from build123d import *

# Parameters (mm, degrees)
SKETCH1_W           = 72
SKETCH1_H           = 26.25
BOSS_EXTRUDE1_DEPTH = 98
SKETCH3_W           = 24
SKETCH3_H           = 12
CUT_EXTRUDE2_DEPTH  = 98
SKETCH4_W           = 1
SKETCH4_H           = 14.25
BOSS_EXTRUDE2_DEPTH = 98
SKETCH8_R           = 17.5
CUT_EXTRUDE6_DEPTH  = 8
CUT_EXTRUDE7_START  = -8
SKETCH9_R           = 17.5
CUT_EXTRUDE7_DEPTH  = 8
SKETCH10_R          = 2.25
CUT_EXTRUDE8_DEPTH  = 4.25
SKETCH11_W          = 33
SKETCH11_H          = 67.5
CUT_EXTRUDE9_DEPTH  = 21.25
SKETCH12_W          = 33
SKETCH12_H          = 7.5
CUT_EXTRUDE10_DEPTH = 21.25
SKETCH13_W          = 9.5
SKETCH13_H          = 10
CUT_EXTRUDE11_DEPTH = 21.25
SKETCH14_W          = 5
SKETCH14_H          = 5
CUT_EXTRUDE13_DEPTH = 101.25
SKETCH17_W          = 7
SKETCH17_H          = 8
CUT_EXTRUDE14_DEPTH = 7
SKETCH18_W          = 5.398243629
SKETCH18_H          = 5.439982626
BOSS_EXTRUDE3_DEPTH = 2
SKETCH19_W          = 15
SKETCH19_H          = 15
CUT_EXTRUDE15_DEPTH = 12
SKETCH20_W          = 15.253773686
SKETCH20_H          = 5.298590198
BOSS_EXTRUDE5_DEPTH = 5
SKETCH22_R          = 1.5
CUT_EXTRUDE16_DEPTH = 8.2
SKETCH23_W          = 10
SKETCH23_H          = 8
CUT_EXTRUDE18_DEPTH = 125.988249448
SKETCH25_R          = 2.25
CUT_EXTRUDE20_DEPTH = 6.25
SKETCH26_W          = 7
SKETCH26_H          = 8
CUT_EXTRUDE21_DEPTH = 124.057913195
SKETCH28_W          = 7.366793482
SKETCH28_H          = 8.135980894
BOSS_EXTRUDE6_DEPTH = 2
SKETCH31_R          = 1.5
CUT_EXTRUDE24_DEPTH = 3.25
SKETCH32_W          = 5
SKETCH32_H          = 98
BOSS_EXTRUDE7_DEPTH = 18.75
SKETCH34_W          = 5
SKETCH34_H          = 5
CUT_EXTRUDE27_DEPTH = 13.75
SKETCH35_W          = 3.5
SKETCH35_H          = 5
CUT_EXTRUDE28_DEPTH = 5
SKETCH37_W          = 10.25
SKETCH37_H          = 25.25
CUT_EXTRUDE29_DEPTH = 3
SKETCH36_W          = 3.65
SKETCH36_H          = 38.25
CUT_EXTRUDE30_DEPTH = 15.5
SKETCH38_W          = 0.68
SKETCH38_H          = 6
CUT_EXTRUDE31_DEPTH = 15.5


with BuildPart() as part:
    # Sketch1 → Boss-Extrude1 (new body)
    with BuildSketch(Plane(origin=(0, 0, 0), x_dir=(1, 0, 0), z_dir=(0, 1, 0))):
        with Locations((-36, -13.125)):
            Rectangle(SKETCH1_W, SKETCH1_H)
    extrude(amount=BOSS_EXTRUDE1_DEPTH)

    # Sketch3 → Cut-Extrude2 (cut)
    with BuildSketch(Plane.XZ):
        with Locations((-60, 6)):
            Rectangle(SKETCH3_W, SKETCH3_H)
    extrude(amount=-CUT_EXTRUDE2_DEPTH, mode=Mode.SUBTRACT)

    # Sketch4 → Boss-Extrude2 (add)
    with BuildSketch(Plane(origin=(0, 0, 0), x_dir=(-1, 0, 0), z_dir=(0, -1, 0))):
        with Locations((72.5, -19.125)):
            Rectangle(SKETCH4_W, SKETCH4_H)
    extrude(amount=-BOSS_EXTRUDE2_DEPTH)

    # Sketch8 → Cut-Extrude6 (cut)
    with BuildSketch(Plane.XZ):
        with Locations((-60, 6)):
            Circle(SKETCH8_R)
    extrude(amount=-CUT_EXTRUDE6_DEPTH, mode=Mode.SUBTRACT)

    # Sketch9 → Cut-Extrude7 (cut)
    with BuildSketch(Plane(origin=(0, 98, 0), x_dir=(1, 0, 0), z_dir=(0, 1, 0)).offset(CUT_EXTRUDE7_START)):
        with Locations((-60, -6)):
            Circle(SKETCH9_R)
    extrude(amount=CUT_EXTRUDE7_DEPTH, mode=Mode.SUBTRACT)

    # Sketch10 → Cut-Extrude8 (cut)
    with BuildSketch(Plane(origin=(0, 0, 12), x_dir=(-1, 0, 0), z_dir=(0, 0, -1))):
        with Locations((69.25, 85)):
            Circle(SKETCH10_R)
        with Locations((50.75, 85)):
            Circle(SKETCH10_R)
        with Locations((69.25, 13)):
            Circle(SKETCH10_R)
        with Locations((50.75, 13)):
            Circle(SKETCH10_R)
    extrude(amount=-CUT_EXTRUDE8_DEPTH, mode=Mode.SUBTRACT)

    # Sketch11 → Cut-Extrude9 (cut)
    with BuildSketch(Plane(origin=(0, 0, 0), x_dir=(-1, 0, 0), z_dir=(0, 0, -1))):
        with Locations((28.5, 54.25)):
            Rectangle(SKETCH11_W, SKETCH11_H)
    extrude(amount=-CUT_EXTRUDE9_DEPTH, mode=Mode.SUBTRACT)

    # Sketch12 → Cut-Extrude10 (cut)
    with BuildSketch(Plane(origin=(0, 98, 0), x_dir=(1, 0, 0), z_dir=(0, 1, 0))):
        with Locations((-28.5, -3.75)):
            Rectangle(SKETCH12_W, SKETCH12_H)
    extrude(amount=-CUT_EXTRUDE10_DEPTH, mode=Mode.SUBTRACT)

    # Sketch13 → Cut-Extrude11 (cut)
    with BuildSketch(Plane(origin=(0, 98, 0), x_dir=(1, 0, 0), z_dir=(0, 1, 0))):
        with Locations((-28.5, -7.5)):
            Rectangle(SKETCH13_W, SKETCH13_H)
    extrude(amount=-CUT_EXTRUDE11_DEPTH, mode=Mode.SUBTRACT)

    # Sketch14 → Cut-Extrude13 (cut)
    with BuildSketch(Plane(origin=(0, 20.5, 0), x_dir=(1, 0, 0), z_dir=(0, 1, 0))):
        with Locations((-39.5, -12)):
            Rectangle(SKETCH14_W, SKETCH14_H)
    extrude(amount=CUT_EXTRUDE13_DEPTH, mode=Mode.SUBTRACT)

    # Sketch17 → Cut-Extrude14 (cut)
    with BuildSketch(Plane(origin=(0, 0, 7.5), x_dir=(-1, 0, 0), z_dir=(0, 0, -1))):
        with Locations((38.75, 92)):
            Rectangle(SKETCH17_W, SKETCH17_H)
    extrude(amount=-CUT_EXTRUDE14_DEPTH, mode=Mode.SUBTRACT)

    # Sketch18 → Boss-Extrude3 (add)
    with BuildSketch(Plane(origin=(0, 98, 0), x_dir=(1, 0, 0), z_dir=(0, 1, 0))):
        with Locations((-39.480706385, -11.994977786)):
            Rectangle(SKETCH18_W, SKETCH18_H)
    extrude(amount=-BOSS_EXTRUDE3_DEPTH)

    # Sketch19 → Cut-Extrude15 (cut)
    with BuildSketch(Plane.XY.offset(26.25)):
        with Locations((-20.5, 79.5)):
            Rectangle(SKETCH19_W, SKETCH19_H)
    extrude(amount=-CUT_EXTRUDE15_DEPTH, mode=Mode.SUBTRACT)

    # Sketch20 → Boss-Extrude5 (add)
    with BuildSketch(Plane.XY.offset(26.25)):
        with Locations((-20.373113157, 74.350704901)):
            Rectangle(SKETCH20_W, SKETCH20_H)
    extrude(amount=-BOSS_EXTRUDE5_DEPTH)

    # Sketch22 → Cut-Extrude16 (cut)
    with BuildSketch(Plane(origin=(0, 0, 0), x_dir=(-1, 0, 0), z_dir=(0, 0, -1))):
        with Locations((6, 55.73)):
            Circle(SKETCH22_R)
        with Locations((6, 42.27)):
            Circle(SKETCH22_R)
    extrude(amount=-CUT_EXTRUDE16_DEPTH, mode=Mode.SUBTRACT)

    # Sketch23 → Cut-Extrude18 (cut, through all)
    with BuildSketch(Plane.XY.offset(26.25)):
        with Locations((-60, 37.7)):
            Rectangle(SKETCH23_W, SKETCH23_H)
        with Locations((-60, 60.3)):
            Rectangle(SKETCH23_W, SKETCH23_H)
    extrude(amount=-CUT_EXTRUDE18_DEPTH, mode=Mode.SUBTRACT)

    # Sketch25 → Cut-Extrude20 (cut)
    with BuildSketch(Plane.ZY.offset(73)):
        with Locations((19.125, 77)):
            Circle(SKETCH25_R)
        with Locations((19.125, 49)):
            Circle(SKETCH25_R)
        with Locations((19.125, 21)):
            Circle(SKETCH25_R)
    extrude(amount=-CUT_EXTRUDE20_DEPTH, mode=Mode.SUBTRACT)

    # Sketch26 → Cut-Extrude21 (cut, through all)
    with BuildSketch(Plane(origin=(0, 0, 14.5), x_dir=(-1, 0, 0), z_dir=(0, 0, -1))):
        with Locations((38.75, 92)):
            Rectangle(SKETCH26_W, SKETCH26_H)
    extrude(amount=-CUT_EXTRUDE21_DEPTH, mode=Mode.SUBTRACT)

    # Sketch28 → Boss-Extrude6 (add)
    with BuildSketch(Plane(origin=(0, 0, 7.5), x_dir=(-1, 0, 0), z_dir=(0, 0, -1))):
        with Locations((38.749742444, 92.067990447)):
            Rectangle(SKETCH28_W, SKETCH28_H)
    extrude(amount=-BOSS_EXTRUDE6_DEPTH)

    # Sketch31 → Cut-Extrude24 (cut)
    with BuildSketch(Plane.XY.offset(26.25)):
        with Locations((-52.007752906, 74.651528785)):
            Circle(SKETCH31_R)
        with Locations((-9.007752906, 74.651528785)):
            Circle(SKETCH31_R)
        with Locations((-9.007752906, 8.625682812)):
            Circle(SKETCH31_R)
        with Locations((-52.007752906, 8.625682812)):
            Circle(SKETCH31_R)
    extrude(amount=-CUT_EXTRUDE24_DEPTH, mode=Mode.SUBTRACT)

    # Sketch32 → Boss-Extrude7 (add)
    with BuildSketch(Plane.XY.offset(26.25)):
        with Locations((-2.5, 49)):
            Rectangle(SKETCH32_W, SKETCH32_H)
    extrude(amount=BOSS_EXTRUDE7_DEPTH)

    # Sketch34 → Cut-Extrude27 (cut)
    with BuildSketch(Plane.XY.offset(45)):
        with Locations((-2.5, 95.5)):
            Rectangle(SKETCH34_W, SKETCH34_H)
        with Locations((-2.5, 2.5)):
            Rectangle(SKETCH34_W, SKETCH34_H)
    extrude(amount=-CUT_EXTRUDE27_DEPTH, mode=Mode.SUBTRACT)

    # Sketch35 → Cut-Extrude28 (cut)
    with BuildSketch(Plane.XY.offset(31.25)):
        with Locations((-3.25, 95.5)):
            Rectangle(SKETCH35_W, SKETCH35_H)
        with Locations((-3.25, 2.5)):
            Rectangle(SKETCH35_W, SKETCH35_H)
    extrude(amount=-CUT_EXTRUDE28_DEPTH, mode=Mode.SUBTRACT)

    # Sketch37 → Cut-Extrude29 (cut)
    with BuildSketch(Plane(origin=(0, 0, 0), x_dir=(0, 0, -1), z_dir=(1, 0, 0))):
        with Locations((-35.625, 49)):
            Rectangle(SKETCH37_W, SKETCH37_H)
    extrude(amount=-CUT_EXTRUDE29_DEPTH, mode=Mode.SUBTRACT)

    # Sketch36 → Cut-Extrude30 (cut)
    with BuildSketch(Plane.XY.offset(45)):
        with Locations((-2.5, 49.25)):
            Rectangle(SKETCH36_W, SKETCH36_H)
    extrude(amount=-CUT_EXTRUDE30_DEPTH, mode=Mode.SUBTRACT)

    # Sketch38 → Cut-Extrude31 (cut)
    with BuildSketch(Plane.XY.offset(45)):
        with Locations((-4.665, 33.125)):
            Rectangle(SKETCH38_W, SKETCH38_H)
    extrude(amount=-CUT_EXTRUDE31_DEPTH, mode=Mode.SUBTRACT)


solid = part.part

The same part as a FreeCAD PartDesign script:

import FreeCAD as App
import Part
import Sketcher
from FreeCAD import Vector

doc = App.newDocument("Part")
params = doc.addObject("Spreadsheet::Sheet", "Params")
for row, (alias, value) in enumerate([
    ("sketch1_width", "72 mm"),
    ("sketch1_height", "26.25 mm"),
    ("pad1_length", "98 mm"),
    ("sketch2_width", "24 mm"),
    ("sketch2_height", "12 mm"),
    ("pocket1_length", "98 mm"),
    ("sketch3_width", "1 mm"),
    ("sketch3_height", "14.25 mm"),
    ("pad2_length", "98 mm"),
    ("sketch4_diameter", "35 mm"),
    ("pocket2_length", "8 mm"),
    ("sketch5_diameter", "35 mm"),
    ("pocket3_length", "8 mm"),
    ("sketch6_diameter", "4.5 mm"),
    ("pocket4_length", "4.25 mm"),
    ("sketch7_width", "33 mm"),
    ("sketch7_height", "67.5 mm"),
    ("pocket5_length", "21.25 mm"),
    ("sketch8_width", "33 mm"),
    ("sketch8_height", "7.5 mm"),
    ("pocket6_length", "21.25 mm"),
    ("sketch9_height", "10 mm"),
    ("sketch9_width", "9.5 mm"),
    ("pocket7_length", "21.25 mm"),
    ("sketch10_width", "5 mm"),
    ("pocket8_length", "101.25 mm"),
    ("sketch11_width", "7 mm"),
    ("sketch11_height", "8 mm"),
    ("pocket9_length", "7 mm"),
    ("pad3_length", "2 mm"),
    ("sketch13_width", "15 mm"),
    ("pocket10_length", "12 mm"),
    ("pad4_length", "5 mm"),
    ("sketch15_diameter", "3 mm"),
    ("pocket11_length", "8.2 mm"),
    ("sketch16_width", "10 mm"),
    ("sketch16_height", "8 mm"),
    ("sketch17_diameter", "4.5 mm"),
    ("pocket13_length", "6.25 mm"),
    ("sketch18_width", "7 mm"),
    ("sketch18_height", "8 mm"),
    ("pad5_length", "2 mm"),
    ("sketch20_diameter", "3 mm"),
    ("pocket15_length", "3.25 mm"),
    ("sketch21_width", "5 mm"),
    ("sketch21_height", "98 mm"),
    ("pad6_length", "18.75 mm"),
    ("sketch22_width", "5 mm"),
    ("pocket16_length", "13.75 mm"),
    ("sketch23_height", "5 mm"),
    ("sketch23_width", "3.5 mm"),
    ("pocket17_length", "5 mm"),
    ("sketch24_width", "25.25 mm"),
    ("sketch24_height", "10.25 mm"),
    ("pocket18_length", "3 mm"),
    ("sketch25_width", "3.65 mm"),
    ("sketch25_height", "38.25 mm"),
    ("pocket19_length", "15.5 mm"),
    ("sketch26_height", "6 mm"),
    ("sketch26_width", "0.68 mm"),
    ("pocket20_length", "15.5 mm"),
], start=1):
    params.set(f"A{row}", alias)
    params.set(f"B{row}", "=" + value)
    params.setAlias(f"B{row}", alias)

body = doc.addObject("PartDesign::Body", "Body")

# Sketch on XZ plane
sketch1 = doc.addObject("Sketcher::SketchObject", "Sketch")
body.addObject(sketch1)
sketch1.AttachmentSupport = (doc.XZ_Plane, [""])
sketch1.MapMode = "FlatFace"
sketch1.addGeometry(Part.LineSegment(Vector(-72, 0, 0), Vector(-72, 26.25, 0)), False)
sketch1.addGeometry(Part.LineSegment(Vector(-72, 26.25, 0), Vector(0, 26.25, 0)), False)
sketch1.addGeometry(Part.LineSegment(Vector(0, 26.25, 0), Vector(0, 0, 0)), False)
sketch1.addGeometry(Part.LineSegment(Vector(0, 0, 0), Vector(-72, 0, 0)), False)
sketch1.addConstraint(Sketcher.Constraint("Coincident", 0, 2, 1, 1))
sketch1.addConstraint(Sketcher.Constraint("Coincident", 1, 2, 2, 1))
sketch1.addConstraint(Sketcher.Constraint("Coincident", 2, 2, 3, 1))
sketch1.addConstraint(Sketcher.Constraint("Coincident", 3, 2, 0, 1))
sketch1.addConstraint(Sketcher.Constraint("Vertical", 0))
sketch1.addConstraint(Sketcher.Constraint("Horizontal", 1))
sketch1.addConstraint(Sketcher.Constraint("Vertical", 2))
sketch1.addConstraint(Sketcher.Constraint("Horizontal", 3))
sketch1.addConstraint(Sketcher.Constraint("Coincident", 2, 2, -1, 1))
sketch1.addConstraint(Sketcher.Constraint("DistanceX", 1, 1, 1, 2, 72.0))
sketch1.addConstraint(Sketcher.Constraint("DistanceY", 0, 1, 0, 2, 26.25))
sketch1.setExpression("Constraints[9]", "Params.sketch1_width")
sketch1.setExpression("Constraints[10]", "Params.sketch1_height")
pad1 = doc.addObject("PartDesign::Pad", "Pad")
body.addObject(pad1)
pad1.Profile = sketch1
pad1.setExpression("Length", "Params.pad1_length")
pad1.Reversed = True

# Sketch on XZ plane
sketch2 = doc.addObject("Sketcher::SketchObject", "Sketch001")
body.addObject(sketch2)
sketch2.AttachmentSupport = (doc.XZ_Plane, [""])
sketch2.MapMode = "FlatFace"
sketch2.addGeometry(Part.LineSegment(Vector(-72, 12, 0), Vector(-72, 0, 0)), False)
sketch2.addGeometry(Part.LineSegment(Vector(-72, 0, 0), Vector(-48, 0, 0)), False)
sketch2.addGeometry(Part.LineSegment(Vector(-48, 0, 0), Vector(-48, 12, 0)), False)
sketch2.addGeometry(Part.LineSegment(Vector(-48, 12, 0), Vector(-72, 12, 0)), False)
sketch2.addConstraint(Sketcher.Constraint("Coincident", 0, 2, 1, 1))
sketch2.addConstraint(Sketcher.Constraint("Coincident", 1, 2, 2, 1))
sketch2.addConstraint(Sketcher.Constraint("Coincident", 2, 2, 3, 1))
sketch2.addConstraint(Sketcher.Constraint("Coincident", 3, 2, 0, 1))
sketch2.addConstraint(Sketcher.Constraint("Vertical", 0))
sketch2.addConstraint(Sketcher.Constraint("Horizontal", 1))
sketch2.addConstraint(Sketcher.Constraint("Vertical", 2))
sketch2.addConstraint(Sketcher.Constraint("Horizontal", 3))
sketch2.addConstraint(Sketcher.Constraint("PointOnObject", 0, 2, -1))
sketch2.addConstraint(Sketcher.Constraint("DistanceX", 1, 1, 1, 2, 24.0))
sketch2.addConstraint(Sketcher.Constraint("DistanceY", 0, 2, 0, 1, 12.0))
sketch2.addConstraint(Sketcher.Constraint("DistanceX", 0, 2, -1, 1, 72.0))
sketch2.setExpression("Constraints[9]", "Params.sketch2_width")
sketch2.setExpression("Constraints[10]", "Params.sketch2_height")
pocket1 = doc.addObject("PartDesign::Pocket", "Pocket")
body.addObject(pocket1)
pocket1.Profile = sketch2
pocket1.setExpression("Length", "Params.pocket1_length")

# Sketch on XZ plane
sketch3 = doc.addObject("Sketcher::SketchObject", "Sketch002")
body.addObject(sketch3)
sketch3.AttachmentSupport = (doc.XZ_Plane, [""])
sketch3.MapMode = "FlatFace"
sketch3.addGeometry(Part.LineSegment(Vector(-72, 12, 0), Vector(-72, 26.25, 0)), False)
sketch3.addGeometry(Part.LineSegment(Vector(-72, 26.25, 0), Vector(-73, 26.25, 0)), False)
sketch3.addGeometry(Part.LineSegment(Vector(-73, 26.25, 0), Vector(-73, 12, 0)), False)
sketch3.addGeometry(Part.LineSegment(Vector(-73, 12, 0), Vector(-72, 12, 0)), False)
sketch3.addConstraint(Sketcher.Constraint("Coincident", 0, 2, 1, 1))
sketch3.addConstraint(Sketcher.Constraint("Coincident", 1, 2, 2, 1))
sketch3.addConstraint(Sketcher.Constraint("Coincident", 2, 2, 3, 1))
sketch3.addConstraint(Sketcher.Constraint("Coincident", 3, 2, 0, 1))
sketch3.addConstraint(Sketcher.Constraint("Vertical", 0))
sketch3.addConstraint(Sketcher.Constraint("Horizontal", 1))
sketch3.addConstraint(Sketcher.Constraint("Vertical", 2))
sketch3.addConstraint(Sketcher.Constraint("Horizontal", 3))
sketch3.addConstraint(Sketcher.Constraint("DistanceX", 1, 2, 1, 1, 1.0))
sketch3.addConstraint(Sketcher.Constraint("DistanceX", 0, 2, -1, 1, 72.0))
sketch3.addConstraint(Sketcher.Constraint("DistanceY", -1, 1, 2, 2, 12.0))
sketch3.addConstraint(Sketcher.Constraint("DistanceY", 0, 1, 0, 2, 14.25))
sketch3.setExpression("Constraints[8]", "Params.sketch3_width")
sketch3.setExpression("Constraints[11]", "Params.sketch3_height")
pad2 = doc.addObject("PartDesign::Pad", "Pad001")
body.addObject(pad2)
pad2.Profile = sketch3
pad2.setExpression("Length", "Params.pad2_length")
pad2.Reversed = True

# Sketch on XZ plane
sketch4 = doc.addObject("Sketcher::SketchObject", "Sketch003")
body.addObject(sketch4)
sketch4.AttachmentSupport = (doc.XZ_Plane, [""])
sketch4.MapMode = "FlatFace"
sketch4.addGeometry(Part.Circle(Vector(-60, 6, 0), Vector(0, 0, 1), 17.5), False)
sketch4.addConstraint(Sketcher.Constraint("Diameter", 0, 35.0))
sketch4.addConstraint(Sketcher.Constraint("DistanceX", 0, 3, -1, 1, 60.0))
sketch4.addConstraint(Sketcher.Constraint("DistanceY", -1, 1, 0, 3, 6.0))
sketch4.setExpression("Constraints[0]", "Params.sketch4_diameter")
pocket2 = doc.addObject("PartDesign::Pocket", "Pocket001")
body.addObject(pocket2)
pocket2.Profile = sketch4
pocket2.setExpression("Length", "Params.pocket2_length")

# Sketch on XZ plane
sketch5 = doc.addObject("Sketcher::SketchObject", "Sketch004")
body.addObject(sketch5)
sketch5.AttachmentSupport = (doc.XZ_Plane, [""])
sketch5.MapMode = "FlatFace"
sketch5.AttachmentOffset = App.Placement(Vector(0, 0, -90), App.Rotation())
sketch5.addGeometry(Part.Circle(Vector(-60, 6, 0), Vector(0, 0, 1), 17.5), False)
sketch5.addConstraint(Sketcher.Constraint("Diameter", 0, 35.0))
sketch5.addConstraint(Sketcher.Constraint("DistanceX", 0, 3, -1, 1, 60.0))
sketch5.addConstraint(Sketcher.Constraint("DistanceY", -1, 1, 0, 3, 6.0))
sketch5.setExpression("Constraints[0]", "Params.sketch5_diameter")
pocket3 = doc.addObject("PartDesign::Pocket", "Pocket002")
body.addObject(pocket3)
pocket3.Profile = sketch5
pocket3.setExpression("Length", "Params.pocket3_length")

# Sketch on XY plane
sketch6 = doc.addObject("Sketcher::SketchObject", "Sketch005")
body.addObject(sketch6)
sketch6.AttachmentSupport = (doc.XY_Plane, [""])
sketch6.MapMode = "FlatFace"
sketch6.AttachmentOffset = App.Placement(Vector(0, 0, 12), App.Rotation())
sketch6.addGeometry(Part.Circle(Vector(-69.25, 85, 0), Vector(0, 0, 1), 2.25), False)
sketch6.addGeometry(Part.Circle(Vector(-50.75, 85, 0), Vector(0, 0, 1), 2.25), False)
sketch6.addGeometry(Part.Circle(Vector(-69.25, 13, 0), Vector(0, 0, 1), 2.25), False)
sketch6.addGeometry(Part.Circle(Vector(-50.75, 13, 0), Vector(0, 0, 1), 2.25), False)
sketch6.addConstraint(Sketcher.Constraint("Equal", 0, 1))
sketch6.addConstraint(Sketcher.Constraint("Equal", 1, 2))
sketch6.addConstraint(Sketcher.Constraint("Equal", 2, 3))
sketch6.addConstraint(Sketcher.Constraint("Horizontal", 0, 3, 1, 3))
sketch6.addConstraint(Sketcher.Constraint("Horizontal", 2, 3, 3, 3))
sketch6.addConstraint(Sketcher.Constraint("Vertical", 0, 3, 2, 3))
sketch6.addConstraint(Sketcher.Constraint("Vertical", 1, 3, 3, 3))
sketch6.addConstraint(Sketcher.Constraint("Diameter", 0, 4.5))
sketch6.addConstraint(Sketcher.Constraint("DistanceY", -1, 1, 0, 3, 85.0))
sketch6.addConstraint(Sketcher.Constraint("DistanceY", -1, 1, 2, 3, 13.0))
sketch6.addConstraint(Sketcher.Constraint("DistanceX", 0, 3, 1, 3, 18.5))
sketch6.addConstraint(Sketcher.Constraint("DistanceX", 0, 3, -1, 1, 69.25))
sketch6.setExpression("Constraints[7]", "Params.sketch6_diameter")
pocket4 = doc.addObject("PartDesign::Pocket", "Pocket003")
body.addObject(pocket4)
pocket4.Profile = sketch6
pocket4.setExpression("Length", "Params.pocket4_length")
pocket4.Reversed = True

# Sketch on XY plane
sketch7 = doc.addObject("Sketcher::SketchObject", "Sketch006")
body.addObject(sketch7)
sketch7.AttachmentSupport = (doc.XY_Plane, [""])
sketch7.MapMode = "FlatFace"
sketch7.addGeometry(Part.LineSegment(Vector(-12, 88, 0), Vector(-12, 20.5, 0)), False)
sketch7.addGeometry(Part.LineSegment(Vector(-12, 20.5, 0), Vector(-45, 20.5, 0)), False)
sketch7.addGeometry(Part.LineSegment(Vector(-45, 20.5, 0), Vector(-45, 88, 0)), False)
sketch7.addGeometry(Part.LineSegment(Vector(-45, 88, 0), Vector(-12, 88, 0)), False)
sketch7.addConstraint(Sketcher.Constraint("Coincident", 0, 2, 1, 1))
sketch7.addConstraint(Sketcher.Constraint("Coincident", 1, 2, 2, 1))
sketch7.addConstraint(Sketcher.Constraint("Coincident", 2, 2, 3, 1))
sketch7.addConstraint(Sketcher.Constraint("Coincident", 3, 2, 0, 1))
sketch7.addConstraint(Sketcher.Constraint("Vertical", 0))
sketch7.addConstraint(Sketcher.Constraint("Horizontal", 1))
sketch7.addConstraint(Sketcher.Constraint("Vertical", 2))
sketch7.addConstraint(Sketcher.Constraint("Horizontal", 3))
sketch7.addConstraint(Sketcher.Constraint("DistanceX", 1, 2, 1, 1, 33.0))
sketch7.addConstraint(Sketcher.Constraint("DistanceY", 0, 2, 0, 1, 67.5))
sketch7.addConstraint(Sketcher.Constraint("DistanceX", 0, 2, -1, 1, 12.0))
sketch7.addConstraint(Sketcher.Constraint("DistanceY", -1, 1, 2, 2, 88.0))
sketch7.setExpression("Constraints[8]", "Params.sketch7_width")
sketch7.setExpression("Constraints[9]", "Params.sketch7_height")
pocket5 = doc.addObject("PartDesign::Pocket", "Pocket004")
body.addObject(pocket5)
pocket5.Profile = sketch7
pocket5.setExpression("Length", "Params.pocket5_length")
pocket5.Reversed = True

# Sketch on XZ plane
sketch8 = doc.addObject("Sketcher::SketchObject", "Sketch007")
body.addObject(sketch8)
sketch8.AttachmentSupport = (doc.XZ_Plane, [""])
sketch8.MapMode = "FlatFace"
sketch8.AttachmentOffset = App.Placement(Vector(0, 0, -98), App.Rotation())
sketch8.addGeometry(Part.LineSegment(Vector(-45, 0, 0), Vector(-45, 7.5, 0)), False)
sketch8.addGeometry(Part.LineSegment(Vector(-45, 7.5, 0), Vector(-12, 7.5, 0)), False)
sketch8.addGeometry(Part.LineSegment(Vector(-12, 7.5, 0), Vector(-12, 0, 0)), False)
sketch8.addGeometry(Part.LineSegment(Vector(-12, 0, 0), Vector(-45, 0, 0)), False)
sketch8.addConstraint(Sketcher.Constraint("Coincident", 0, 2, 1, 1))
sketch8.addConstraint(Sketcher.Constraint("Coincident", 1, 2, 2, 1))
sketch8.addConstraint(Sketcher.Constraint("Coincident", 2, 2, 3, 1))
sketch8.addConstraint(Sketcher.Constraint("Coincident", 3, 2, 0, 1))
sketch8.addConstraint(Sketcher.Constraint("Vertical", 0))
sketch8.addConstraint(Sketcher.Constraint("Horizontal", 1))
sketch8.addConstraint(Sketcher.Constraint("Vertical", 2))
sketch8.addConstraint(Sketcher.Constraint("Horizontal", 3))
sketch8.addConstraint(Sketcher.Constraint("PointOnObject", 2, 2, -1))
sketch8.addConstraint(Sketcher.Constraint("DistanceX", 1, 1, 1, 2, 33.0))
sketch8.addConstraint(Sketcher.Constraint("DistanceY", 0, 1, 0, 2, 7.5))
sketch8.addConstraint(Sketcher.Constraint("DistanceX", 0, 2, -1, 1, 45.0))
sketch8.setExpression("Constraints[9]", "Params.sketch8_width")
sketch8.setExpression("Constraints[10]", "Params.sketch8_height")
pocket6 = doc.addObject("PartDesign::Pocket", "Pocket005")
body.addObject(pocket6)
pocket6.Profile = sketch8
pocket6.setExpression("Length", "Params.pocket6_length")
pocket6.Reversed = True

# Sketch on XZ plane
sketch9 = doc.addObject("Sketcher::SketchObject", "Sketch008")
body.addObject(sketch9)
sketch9.AttachmentSupport = (doc.XZ_Plane, [""])
sketch9.MapMode = "FlatFace"
sketch9.AttachmentOffset = App.Placement(Vector(0, 0, -98), App.Rotation())
sketch9.addGeometry(Part.LineSegment(Vector(-33.25, 2.5, 0), Vector(-33.25, 12.5, 0)), False)
sketch9.addGeometry(Part.LineSegment(Vector(-33.25, 12.5, 0), Vector(-23.75, 12.5, 0)), False)
sketch9.addGeometry(Part.LineSegment(Vector(-23.75, 12.5, 0), Vector(-23.75, 2.5, 0)), False)
sketch9.addGeometry(Part.LineSegment(Vector(-23.75, 2.5, 0), Vector(-33.25, 2.5, 0)), False)
sketch9.addConstraint(Sketcher.Constraint("Coincident", 0, 2, 1, 1))
sketch9.addConstraint(Sketcher.Constraint("Coincident", 1, 2, 2, 1))
sketch9.addConstraint(Sketcher.Constraint("Coincident", 2, 2, 3, 1))
sketch9.addConstraint(Sketcher.Constraint("Coincident", 3, 2, 0, 1))
sketch9.addConstraint(Sketcher.Constraint("Vertical", 0))
sketch9.addConstraint(Sketcher.Constraint("Horizontal", 1))
sketch9.addConstraint(Sketcher.Constraint("Vertical", 2))
sketch9.addConstraint(Sketcher.Constraint("Horizontal", 3))
sketch9.addConstraint(Sketcher.Constraint("DistanceY", 0, 1, 0, 2, 10.0))
sketch9.addConstraint(Sketcher.Constraint("DistanceX", 1, 1, 1, 2, 9.5))
sketch9.addConstraint(Sketcher.Constraint("DistanceY", -1, 1, 0, 2, 12.5))
sketch9.addConstraint(Sketcher.Constraint("DistanceX", 0, 2, -1, 1, 33.25))
sketch9.setExpression("Constraints[8]", "Params.sketch9_height")
sketch9.setExpression("Constraints[9]", "Params.sketch9_width")
pocket7 = doc.addObject("PartDesign::Pocket", "Pocket006")
body.addObject(pocket7)
pocket7.Profile = sketch9
pocket7.setExpression("Length", "Params.pocket7_length")
pocket7.Reversed = True

# Sketch on XZ plane
sketch10 = doc.addObject("Sketcher::SketchObject", "Sketch009")
body.addObject(sketch10)
sketch10.AttachmentSupport = (doc.XZ_Plane, [""])
sketch10.MapMode = "FlatFace"
sketch10.AttachmentOffset = App.Placement(Vector(0, 0, -20.5), App.Rotation())
sketch10.addGeometry(Part.LineSegment(Vector(-42, 9.5, 0), Vector(-42, 14.5, 0)), False)
sketch10.addGeometry(Part.LineSegment(Vector(-42, 14.5, 0), Vector(-37, 14.5, 0)), False)
sketch10.addGeometry(Part.LineSegment(Vector(-37, 14.5, 0), Vector(-37, 9.5, 0)), False)
sketch10.addGeometry(Part.LineSegment(Vector(-37, 9.5, 0), Vector(-42, 9.5, 0)), False)
sketch10.addConstraint(Sketcher.Constraint("Coincident", 0, 2, 1, 1))
sketch10.addConstraint(Sketcher.Constraint("Coincident", 1, 2, 2, 1))
sketch10.addConstraint(Sketcher.Constraint("Coincident", 2, 2, 3, 1))
sketch10.addConstraint(Sketcher.Constraint("Coincident", 3, 2, 0, 1))
sketch10.addConstraint(Sketcher.Constraint("Vertical", 0))
sketch10.addConstraint(Sketcher.Constraint("Horizontal", 1))
sketch10.addConstraint(Sketcher.Constraint("Vertical", 2))
sketch10.addConstraint(Sketcher.Constraint("Horizontal", 3))
sketch10.addConstraint(Sketcher.Constraint("Equal", 3, 0))
sketch10.addConstraint(Sketcher.Constraint("DistanceX", 1, 1, 1, 2, 5.0))
sketch10.addConstraint(Sketcher.Constraint("DistanceX", 0, 2, -1, 1, 42.0))
sketch10.addConstraint(Sketcher.Constraint("DistanceY", -1, 1, 0, 2, 14.5))
sketch10.setExpression("Constraints[9]", "Params.sketch10_width")
pocket8 = doc.addObject("PartDesign::Pocket", "Pocket007")
body.addObject(pocket8)
pocket8.Profile = sketch10
pocket8.setExpression("Length", "Params.pocket8_length")

# Sketch on XY plane
sketch11 = doc.addObject("Sketcher::SketchObject", "Sketch010")
body.addObject(sketch11)
sketch11.AttachmentSupport = (doc.XY_Plane, [""])
sketch11.MapMode = "FlatFace"
sketch11.AttachmentOffset = App.Placement(Vector(0, 0, 7.5), App.Rotation())
sketch11.addGeometry(Part.LineSegment(Vector(-35.25, 96, 0), Vector(-35.25, 88, 0)), False)
sketch11.addGeometry(Part.LineSegment(Vector(-35.25, 88, 0), Vector(-42.25, 88, 0)), False)
sketch11.addGeometry(Part.LineSegment(Vector(-42.25, 88, 0), Vector(-42.25, 96, 0)), False)
sketch11.addGeometry(Part.LineSegment(Vector(-42.25, 96, 0), Vector(-35.25, 96, 0)), False)
sketch11.addConstraint(Sketcher.Constraint("Coincident", 0, 2, 1, 1))
sketch11.addConstraint(Sketcher.Constraint("Coincident", 1, 2, 2, 1))
sketch11.addConstraint(Sketcher.Constraint("Coincident", 2, 2, 3, 1))
sketch11.addConstraint(Sketcher.Constraint("Coincident", 3, 2, 0, 1))
sketch11.addConstraint(Sketcher.Constraint("Vertical", 0))
sketch11.addConstraint(Sketcher.Constraint("Horizontal", 1))
sketch11.addConstraint(Sketcher.Constraint("Vertical", 2))
sketch11.addConstraint(Sketcher.Constraint("Horizontal", 3))
sketch11.addConstraint(Sketcher.Constraint("DistanceX", 1, 2, 1, 1, 7.0))
sketch11.addConstraint(Sketcher.Constraint("DistanceY", 0, 2, 0, 1, 8.0))
sketch11.addConstraint(Sketcher.Constraint("DistanceY", -1, 1, 0, 2, 88.0))
sketch11.addConstraint(Sketcher.Constraint("DistanceX", 0, 2, -1, 1, 35.25))
sketch11.setExpression("Constraints[8]", "Params.sketch11_width")
sketch11.setExpression("Constraints[9]", "Params.sketch11_height")
pocket9 = doc.addObject("PartDesign::Pocket", "Pocket008")
body.addObject(pocket9)
pocket9.Profile = sketch11
pocket9.setExpression("Length", "Params.pocket9_length")
pocket9.Reversed = True

# Sketch on XZ plane
sketch12 = doc.addObject("Sketcher::SketchObject", "Sketch011")
body.addObject(sketch12)
sketch12.AttachmentSupport = (doc.XZ_Plane, [""])
sketch12.MapMode = "FlatFace"
sketch12.AttachmentOffset = App.Placement(Vector(0, 0, -98), App.Rotation())
sketch12.addGeometry(Part.LineSegment(Vector(-42.179828, 9.274986, 0), Vector(-42.179828, 14.714969, 0)), False)
sketch12.addGeometry(Part.LineSegment(Vector(-42.179828, 14.714969, 0), Vector(-36.781585, 14.714969, 0)), False)
sketch12.addGeometry(Part.LineSegment(Vector(-36.781585, 14.714969, 0), Vector(-36.781585, 9.274986, 0)), False)
sketch12.addGeometry(Part.LineSegment(Vector(-36.781585, 9.274986, 0), Vector(-42.179828, 9.274986, 0)), False)
sketch12.addConstraint(Sketcher.Constraint("Coincident", 0, 2, 1, 1))
sketch12.addConstraint(Sketcher.Constraint("Coincident", 1, 2, 2, 1))
sketch12.addConstraint(Sketcher.Constraint("Coincident", 2, 2, 3, 1))
sketch12.addConstraint(Sketcher.Constraint("Coincident", 3, 2, 0, 1))
sketch12.addConstraint(Sketcher.Constraint("Vertical", 0))
sketch12.addConstraint(Sketcher.Constraint("Horizontal", 1))
sketch12.addConstraint(Sketcher.Constraint("Vertical", 2))
sketch12.addConstraint(Sketcher.Constraint("Horizontal", 3))
sketch12.addConstraint(Sketcher.Constraint("DistanceX", 1, 1, 1, 2, 5.398244))
sketch12.addConstraint(Sketcher.Constraint("DistanceY", 0, 1, 0, 2, 5.439983))
sketch12.addConstraint(Sketcher.Constraint("DistanceX", 0, 2, -1, 1, 42.179828))
sketch12.addConstraint(Sketcher.Constraint("DistanceY", -1, 1, 0, 2, 14.714969))
pad3 = doc.addObject("PartDesign::Pad", "Pad002")
body.addObject(pad3)
pad3.Profile = sketch12
pad3.setExpression("Length", "Params.pad3_length")

# Sketch on XY plane
sketch13 = doc.addObject("Sketcher::SketchObject", "Sketch012")
body.addObject(sketch13)
sketch13.AttachmentSupport = (doc.XY_Plane, [""])
sketch13.MapMode = "FlatFace"
sketch13.AttachmentOffset = App.Placement(Vector(0, 0, 26.25), App.Rotation())
sketch13.addGeometry(Part.LineSegment(Vector(-28, 87, 0), Vector(-28, 72, 0)), False)
sketch13.addGeometry(Part.LineSegment(Vector(-28, 72, 0), Vector(-13, 72, 0)), False)
sketch13.addGeometry(Part.LineSegment(Vector(-13, 72, 0), Vector(-13, 87, 0)), False)
sketch13.addGeometry(Part.LineSegment(Vector(-13, 87, 0), Vector(-28, 87, 0)), False)
sketch13.addConstraint(Sketcher.Constraint("Coincident", 0, 2, 1, 1))
sketch13.addConstraint(Sketcher.Constraint("Coincident", 1, 2, 2, 1))
sketch13.addConstraint(Sketcher.Constraint("Coincident", 2, 2, 3, 1))
sketch13.addConstraint(Sketcher.Constraint("Coincident", 3, 2, 0, 1))
sketch13.addConstraint(Sketcher.Constraint("Vertical", 0))
sketch13.addConstraint(Sketcher.Constraint("Horizontal", 1))
sketch13.addConstraint(Sketcher.Constraint("Vertical", 2))
sketch13.addConstraint(Sketcher.Constraint("Horizontal", 3))
sketch13.addConstraint(Sketcher.Constraint("Equal", 3, 0))
sketch13.addConstraint(Sketcher.Constraint("DistanceX", 1, 1, 1, 2, 15.0))
sketch13.addConstraint(Sketcher.Constraint("DistanceX", 0, 2, -1, 1, 28.0))
sketch13.addConstraint(Sketcher.Constraint("DistanceY", -1, 1, 0, 2, 72.0))
sketch13.setExpression("Constraints[9]", "Params.sketch13_width")
pocket10 = doc.addObject("PartDesign::Pocket", "Pocket009")
body.addObject(pocket10)
pocket10.Profile = sketch13
pocket10.setExpression("Length", "Params.pocket10_length")

# Sketch on XY plane
sketch14 = doc.addObject("Sketcher::SketchObject", "Sketch013")
body.addObject(sketch14)
sketch14.AttachmentSupport = (doc.XY_Plane, [""])
sketch14.MapMode = "FlatFace"
sketch14.AttachmentOffset = App.Placement(Vector(0, 0, 26.25), App.Rotation())
sketch14.addGeometry(Part.LineSegment(Vector(-28, 77, 0), Vector(-28, 71.70141, 0)), False)
sketch14.addGeometry(Part.LineSegment(Vector(-28, 71.70141, 0), Vector(-12.746226, 71.70141, 0)), False)
sketch14.addGeometry(Part.LineSegment(Vector(-12.746226, 71.70141, 0), Vector(-12.746226, 77, 0)), False)
sketch14.addGeometry(Part.LineSegment(Vector(-12.746226, 77, 0), Vector(-28, 77, 0)), False)
sketch14.addConstraint(Sketcher.Constraint("Coincident", 0, 2, 1, 1))
sketch14.addConstraint(Sketcher.Constraint("Coincident", 1, 2, 2, 1))
sketch14.addConstraint(Sketcher.Constraint("Coincident", 2, 2, 3, 1))
sketch14.addConstraint(Sketcher.Constraint("Coincident", 3, 2, 0, 1))
sketch14.addConstraint(Sketcher.Constraint("Vertical", 0))
sketch14.addConstraint(Sketcher.Constraint("Horizontal", 1))
sketch14.addConstraint(Sketcher.Constraint("Vertical", 2))
sketch14.addConstraint(Sketcher.Constraint("Horizontal", 3))
sketch14.addConstraint(Sketcher.Constraint("DistanceX", 0, 2, -1, 1, 28.0))
sketch14.addConstraint(Sketcher.Constraint("DistanceY", -1, 1, 2, 2, 77.0))
sketch14.addConstraint(Sketcher.Constraint("DistanceY", 0, 2, 0, 1, 5.29859))
sketch14.addConstraint(Sketcher.Constraint("DistanceX", 1, 1, 1, 2, 15.253774))
pad4 = doc.addObject("PartDesign::Pad", "Pad003")
body.addObject(pad4)
pad4.Profile = sketch14
pad4.setExpression("Length", "Params.pad4_length")
pad4.Reversed = True

# Sketch on XY plane
sketch15 = doc.addObject("Sketcher::SketchObject", "Sketch014")
body.addObject(sketch15)
sketch15.AttachmentSupport = (doc.XY_Plane, [""])
sketch15.MapMode = "FlatFace"
sketch15.addGeometry(Part.Circle(Vector(-6, 55.73, 0), Vector(0, 0, 1), 1.5), False)
sketch15.addGeometry(Part.Circle(Vector(-6, 42.27, 0), Vector(0, 0, 1), 1.5), False)
sketch15.addConstraint(Sketcher.Constraint("Equal", 0, 1))
sketch15.addConstraint(Sketcher.Constraint("Vertical", 0, 3, 1, 3))
sketch15.addConstraint(Sketcher.Constraint("Diameter", 0, 3.0))
sketch15.addConstraint(Sketcher.Constraint("DistanceX", 0, 3, -1, 1, 6.0))
sketch15.addConstraint(Sketcher.Constraint("DistanceY", -1, 1, 0, 3, 55.73))
sketch15.addConstraint(Sketcher.Constraint("DistanceY", -1, 1, 1, 3, 42.27))
sketch15.setExpression("Constraints[2]", "Params.sketch15_diameter")
pocket11 = doc.addObject("PartDesign::Pocket", "Pocket010")
body.addObject(pocket11)
pocket11.Profile = sketch15
pocket11.setExpression("Length", "Params.pocket11_length")
pocket11.Reversed = True

# Sketch on XY plane
sketch16 = doc.addObject("Sketcher::SketchObject", "Sketch015")
body.addObject(sketch16)
sketch16.AttachmentSupport = (doc.XY_Plane, [""])
sketch16.MapMode = "FlatFace"
sketch16.AttachmentOffset = App.Placement(Vector(0, 0, 26.25), App.Rotation())
sketch16.addGeometry(Part.LineSegment(Vector(-65, 41.7, 0), Vector(-65, 33.7, 0)), False)
sketch16.addGeometry(Part.LineSegment(Vector(-65, 33.7, 0), Vector(-55, 33.7, 0)), False)
sketch16.addGeometry(Part.LineSegment(Vector(-55, 33.7, 0), Vector(-55, 41.7, 0)), False)
sketch16.addGeometry(Part.LineSegment(Vector(-55, 41.7, 0), Vector(-65, 41.7, 0)), False)
sketch16.addGeometry(Part.LineSegment(Vector(-65, 64.3, 0), Vector(-65, 56.3, 0)), False)
sketch16.addGeometry(Part.LineSegment(Vector(-65, 56.3, 0), Vector(-55, 56.3, 0)), False)
sketch16.addGeometry(Part.LineSegment(Vector(-55, 56.3, 0), Vector(-55, 64.3, 0)), False)
sketch16.addGeometry(Part.LineSegment(Vector(-55, 64.3, 0), Vector(-65, 64.3, 0)), False)
sketch16.addConstraint(Sketcher.Constraint("Coincident", 0, 2, 1, 1))
sketch16.addConstraint(Sketcher.Constraint("Coincident", 1, 2, 2, 1))
sketch16.addConstraint(Sketcher.Constraint("Coincident", 2, 2, 3, 1))
sketch16.addConstraint(Sketcher.Constraint("Coincident", 3, 2, 0, 1))
sketch16.addConstraint(Sketcher.Constraint("Coincident", 4, 2, 5, 1))
sketch16.addConstraint(Sketcher.Constraint("Coincident", 5, 2, 6, 1))
sketch16.addConstraint(Sketcher.Constraint("Coincident", 6, 2, 7, 1))
sketch16.addConstraint(Sketcher.Constraint("Coincident", 7, 2, 4, 1))
sketch16.addConstraint(Sketcher.Constraint("Vertical", 0))
sketch16.addConstraint(Sketcher.Constraint("Horizontal", 1))
sketch16.addConstraint(Sketcher.Constraint("Vertical", 2))
sketch16.addConstraint(Sketcher.Constraint("Horizontal", 3))
sketch16.addConstraint(Sketcher.Constraint("Vertical", 4))
sketch16.addConstraint(Sketcher.Constraint("Horizontal", 5))
sketch16.addConstraint(Sketcher.Constraint("Vertical", 6))
sketch16.addConstraint(Sketcher.Constraint("Horizontal", 7))
sketch16.addConstraint(Sketcher.Constraint("Vertical", 3, 2, 4, 2))
sketch16.addConstraint(Sketcher.Constraint("Vertical", 2, 2, 5, 2))
sketch16.addConstraint(Sketcher.Constraint("Equal", 2, 4))
sketch16.addConstraint(Sketcher.Constraint("DistanceX", 1, 1, 1, 2, 10.0))
sketch16.addConstraint(Sketcher.Constraint("DistanceY", 0, 2, 0, 1, 8.0))
sketch16.addConstraint(Sketcher.Constraint("DistanceX", 0, 2, -1, 1, 65.0))
sketch16.addConstraint(Sketcher.Constraint("DistanceY", -1, 1, 0, 2, 33.7))
sketch16.addConstraint(Sketcher.Constraint("DistanceY", -1, 1, 4, 2, 56.3))
sketch16.setExpression("Constraints[19]", "Params.sketch16_width")
sketch16.setExpression("Constraints[20]", "Params.sketch16_height")
pocket12 = doc.addObject("PartDesign::Pocket", "Pocket011")
body.addObject(pocket12)
pocket12.Profile = sketch16
pocket12.Type = "ThroughAll"

# Sketch on YZ plane
sketch17 = doc.addObject("Sketcher::SketchObject", "Sketch016")
body.addObject(sketch17)
sketch17.AttachmentSupport = (doc.YZ_Plane, [""])
sketch17.MapMode = "FlatFace"
sketch17.AttachmentOffset = App.Placement(Vector(0, 0, -73), App.Rotation())
sketch17.addGeometry(Part.Circle(Vector(77, 19.125, 0), Vector(0, 0, 1), 2.25), False)
sketch17.addGeometry(Part.Circle(Vector(49, 19.125, 0), Vector(0, 0, 1), 2.25), False)
sketch17.addGeometry(Part.Circle(Vector(21, 19.125, 0), Vector(0, 0, 1), 2.25), False)
sketch17.addConstraint(Sketcher.Constraint("Equal", 0, 1))
sketch17.addConstraint(Sketcher.Constraint("Equal", 1, 2))
sketch17.addConstraint(Sketcher.Constraint("Horizontal", 0, 3, 1, 3))
sketch17.addConstraint(Sketcher.Constraint("Horizontal", 1, 3, 2, 3))
sketch17.addConstraint(Sketcher.Constraint("Diameter", 0, 4.5))
sketch17.addConstraint(Sketcher.Constraint("DistanceX", -1, 1, 0, 3, 77.0))
sketch17.addConstraint(Sketcher.Constraint("DistanceX", -1, 1, 1, 3, 49.0))
sketch17.addConstraint(Sketcher.Constraint("DistanceX", -1, 1, 2, 3, 21.0))
sketch17.addConstraint(Sketcher.Constraint("DistanceY", -1, 1, 0, 3, 19.125))
sketch17.setExpression("Constraints[4]", "Params.sketch17_diameter")
pocket13 = doc.addObject("PartDesign::Pocket", "Pocket012")
body.addObject(pocket13)
pocket13.Profile = sketch17
pocket13.setExpression("Length", "Params.pocket13_length")
pocket13.Reversed = True

# Sketch on XY plane
sketch18 = doc.addObject("Sketcher::SketchObject", "Sketch017")
body.addObject(sketch18)
sketch18.AttachmentSupport = (doc.XY_Plane, [""])
sketch18.MapMode = "FlatFace"
sketch18.AttachmentOffset = App.Placement(Vector(0, 0, 14.5), App.Rotation())
sketch18.addGeometry(Part.LineSegment(Vector(-35.25, 96, 0), Vector(-35.25, 88, 0)), False)
sketch18.addGeometry(Part.LineSegment(Vector(-35.25, 88, 0), Vector(-42.25, 88, 0)), False)
sketch18.addGeometry(Part.LineSegment(Vector(-42.25, 88, 0), Vector(-42.25, 96, 0)), False)
sketch18.addGeometry(Part.LineSegment(Vector(-42.25, 96, 0), Vector(-35.25, 96, 0)), False)
sketch18.addConstraint(Sketcher.Constraint("Coincident", 0, 2, 1, 1))
sketch18.addConstraint(Sketcher.Constraint("Coincident", 1, 2, 2, 1))
sketch18.addConstraint(Sketcher.Constraint("Coincident", 2, 2, 3, 1))
sketch18.addConstraint(Sketcher.Constraint("Coincident", 3, 2, 0, 1))
sketch18.addConstraint(Sketcher.Constraint("Vertical", 0))
sketch18.addConstraint(Sketcher.Constraint("Horizontal", 1))
sketch18.addConstraint(Sketcher.Constraint("Vertical", 2))
sketch18.addConstraint(Sketcher.Constraint("Horizontal", 3))
sketch18.addConstraint(Sketcher.Constraint("DistanceX", 1, 2, 1, 1, 7.0))
sketch18.addConstraint(Sketcher.Constraint("DistanceY", 0, 2, 0, 1, 8.0))
sketch18.addConstraint(Sketcher.Constraint("DistanceY", -1, 1, 0, 2, 88.0))
sketch18.addConstraint(Sketcher.Constraint("DistanceX", 0, 2, -1, 1, 35.25))
sketch18.setExpression("Constraints[8]", "Params.sketch18_width")
sketch18.setExpression("Constraints[9]", "Params.sketch18_height")
pocket14 = doc.addObject("PartDesign::Pocket", "Pocket013")
body.addObject(pocket14)
pocket14.Profile = sketch18
pocket14.Type = "ThroughAll"
pocket14.Reversed = True

# Sketch on XY plane
sketch19 = doc.addObject("Sketcher::SketchObject", "Sketch018")
body.addObject(sketch19)
sketch19.AttachmentSupport = (doc.XY_Plane, [""])
sketch19.MapMode = "FlatFace"
sketch19.AttachmentOffset = App.Placement(Vector(0, 0, 7.5), App.Rotation())
sketch19.addGeometry(Part.LineSegment(Vector(-35.066346, 96.135981, 0), Vector(-35.066346, 88, 0)), False)
sketch19.addGeometry(Part.LineSegment(Vector(-35.066346, 88, 0), Vector(-42.433139, 88, 0)), False)
sketch19.addGeometry(Part.LineSegment(Vector(-42.433139, 88, 0), Vector(-42.433139, 96.135981, 0)), False)
sketch19.addGeometry(Part.LineSegment(Vector(-42.433139, 96.135981, 0), Vector(-35.066346, 96.135981, 0)), False)
sketch19.addConstraint(Sketcher.Constraint("Coincident", 0, 2, 1, 1))
sketch19.addConstraint(Sketcher.Constraint("Coincident", 1, 2, 2, 1))
sketch19.addConstraint(Sketcher.Constraint("Coincident", 2, 2, 3, 1))
sketch19.addConstraint(Sketcher.Constraint("Coincident", 3, 2, 0, 1))
sketch19.addConstraint(Sketcher.Constraint("Vertical", 0))
sketch19.addConstraint(Sketcher.Constraint("Horizontal", 1))
sketch19.addConstraint(Sketcher.Constraint("Vertical", 2))
sketch19.addConstraint(Sketcher.Constraint("Horizontal", 3))
sketch19.addConstraint(Sketcher.Constraint("DistanceY", -1, 1, 0, 2, 88.0))
sketch19.addConstraint(Sketcher.Constraint("DistanceY", 0, 2, 0, 1, 8.135981))
sketch19.addConstraint(Sketcher.Constraint("DistanceX", 1, 2, 1, 1, 7.366793))
sketch19.addConstraint(Sketcher.Constraint("DistanceX", 1, 2, -1, 1, 42.433139))
pad5 = doc.addObject("PartDesign::Pad", "Pad004")
body.addObject(pad5)
pad5.Profile = sketch19
pad5.setExpression("Length", "Params.pad5_length")

# Sketch on XY plane
sketch20 = doc.addObject("Sketcher::SketchObject", "Sketch019")
body.addObject(sketch20)
sketch20.AttachmentSupport = (doc.XY_Plane, [""])
sketch20.MapMode = "FlatFace"
sketch20.AttachmentOffset = App.Placement(Vector(0, 0, 26.25), App.Rotation())
sketch20.addGeometry(Part.Circle(Vector(-52.007753, 74.651529, 0), Vector(0, 0, 1), 1.5), False)
sketch20.addGeometry(Part.Circle(Vector(-9.007753, 74.651529, 0), Vector(0, 0, 1), 1.5), False)
sketch20.addGeometry(Part.Circle(Vector(-9.007753, 8.625683, 0), Vector(0, 0, 1), 1.5), False)
sketch20.addGeometry(Part.Circle(Vector(-52.007753, 8.625683, 0), Vector(0, 0, 1), 1.5), False)
sketch20.addConstraint(Sketcher.Constraint("Equal", 0, 1))
sketch20.addConstraint(Sketcher.Constraint("Equal", 1, 2))
sketch20.addConstraint(Sketcher.Constraint("Equal", 2, 3))
sketch20.addConstraint(Sketcher.Constraint("Horizontal", 0, 3, 1, 3))
sketch20.addConstraint(Sketcher.Constraint("Horizontal", 2, 3, 3, 3))
sketch20.addConstraint(Sketcher.Constraint("Vertical", 1, 3, 2, 3))
sketch20.addConstraint(Sketcher.Constraint("Vertical", 0, 3, 3, 3))
sketch20.addConstraint(Sketcher.Constraint("Diameter", 0, 3.0))
sketch20.addConstraint(Sketcher.Constraint("DistanceX", 0, 3, 1, 3, 43.0))
sketch20.addConstraint(Sketcher.Constraint("DistanceY", -1, 1, 0, 3, 74.651529))
sketch20.addConstraint(Sketcher.Constraint("DistanceX", 0, 3, -1, 1, 52.007753))
sketch20.addConstraint(Sketcher.Constraint("DistanceY", -1, 1, 2, 3, 8.625683))
sketch20.setExpression("Constraints[7]", "Params.sketch20_diameter")
pocket15 = doc.addObject("PartDesign::Pocket", "Pocket014")
body.addObject(pocket15)
pocket15.Profile = sketch20
pocket15.setExpression("Length", "Params.pocket15_length")

# Sketch on XY plane
sketch21 = doc.addObject("Sketcher::SketchObject", "Sketch020")
body.addObject(sketch21)
sketch21.AttachmentSupport = (doc.XY_Plane, [""])
sketch21.MapMode = "FlatFace"
sketch21.AttachmentOffset = App.Placement(Vector(0, 0, 26.25), App.Rotation())
sketch21.addGeometry(Part.LineSegment(Vector(-5, 98, 0), Vector(-5, 0, 0)), False)
sketch21.addGeometry(Part.LineSegment(Vector(-5, 0, 0), Vector(0, 0, 0)), False)
sketch21.addGeometry(Part.LineSegment(Vector(0, 0, 0), Vector(0, 98, 0)), False)
sketch21.addGeometry(Part.LineSegment(Vector(0, 98, 0), Vector(-5, 98, 0)), False)
sketch21.addConstraint(Sketcher.Constraint("Coincident", 0, 2, 1, 1))
sketch21.addConstraint(Sketcher.Constraint("Coincident", 1, 2, 2, 1))
sketch21.addConstraint(Sketcher.Constraint("Coincident", 2, 2, 3, 1))
sketch21.addConstraint(Sketcher.Constraint("Coincident", 3, 2, 0, 1))
sketch21.addConstraint(Sketcher.Constraint("Vertical", 0))
sketch21.addConstraint(Sketcher.Constraint("Horizontal", 1))
sketch21.addConstraint(Sketcher.Constraint("Vertical", 2))
sketch21.addConstraint(Sketcher.Constraint("Horizontal", 3))
sketch21.addConstraint(Sketcher.Constraint("Coincident", 1, 2, -1, 1))
sketch21.addConstraint(Sketcher.Constraint("DistanceX", 1, 1, 1, 2, 5.0))
sketch21.addConstraint(Sketcher.Constraint("DistanceY", 0, 2, 0, 1, 98.0))
sketch21.setExpression("Constraints[9]", "Params.sketch21_width")
sketch21.setExpression("Constraints[10]", "Params.sketch21_height")
pad6 = doc.addObject("PartDesign::Pad", "Pad005")
body.addObject(pad6)
pad6.Profile = sketch21
pad6.setExpression("Length", "Params.pad6_length")

# Sketch on XY plane
sketch22 = doc.addObject("Sketcher::SketchObject", "Sketch021")
body.addObject(sketch22)
sketch22.AttachmentSupport = (doc.XY_Plane, [""])
sketch22.MapMode = "FlatFace"
sketch22.AttachmentOffset = App.Placement(Vector(0, 0, 45), App.Rotation())
sketch22.addGeometry(Part.LineSegment(Vector(-5, 98, 0), Vector(-5, 93, 0)), False)
sketch22.addGeometry(Part.LineSegment(Vector(-5, 93, 0), Vector(0, 93, 0)), False)
sketch22.addGeometry(Part.LineSegment(Vector(0, 93, 0), Vector(0, 98, 0)), False)
sketch22.addGeometry(Part.LineSegment(Vector(0, 98, 0), Vector(-5, 98, 0)), False)
sketch22.addGeometry(Part.LineSegment(Vector(-5, 5, 0), Vector(-5, 0, 0)), False)
sketch22.addGeometry(Part.LineSegment(Vector(-5, 0, 0), Vector(0, 0, 0)), False)
sketch22.addGeometry(Part.LineSegment(Vector(0, 0, 0), Vector(0, 5, 0)), False)
sketch22.addGeometry(Part.LineSegment(Vector(0, 5, 0), Vector(-5, 5, 0)), False)
sketch22.addConstraint(Sketcher.Constraint("Coincident", 0, 2, 1, 1))
sketch22.addConstraint(Sketcher.Constraint("Coincident", 1, 2, 2, 1))
sketch22.addConstraint(Sketcher.Constraint("Coincident", 2, 2, 3, 1))
sketch22.addConstraint(Sketcher.Constraint("Coincident", 3, 2, 0, 1))
sketch22.addConstraint(Sketcher.Constraint("Coincident", 4, 2, 5, 1))
sketch22.addConstraint(Sketcher.Constraint("Coincident", 5, 2, 6, 1))
sketch22.addConstraint(Sketcher.Constraint("Coincident", 6, 2, 7, 1))
sketch22.addConstraint(Sketcher.Constraint("Coincident", 7, 2, 4, 1))
sketch22.addConstraint(Sketcher.Constraint("Vertical", 0))
sketch22.addConstraint(Sketcher.Constraint("Horizontal", 1))
sketch22.addConstraint(Sketcher.Constraint("Vertical", 2))
sketch22.addConstraint(Sketcher.Constraint("Horizontal", 3))
sketch22.addConstraint(Sketcher.Constraint("Vertical", 4))
sketch22.addConstraint(Sketcher.Constraint("Horizontal", 5))
sketch22.addConstraint(Sketcher.Constraint("Vertical", 6))
sketch22.addConstraint(Sketcher.Constraint("Horizontal", 7))
sketch22.addConstraint(Sketcher.Constraint("Coincident", 5, 2, -1, 1))
sketch22.addConstraint(Sketcher.Constraint("PointOnObject", 1, 2, -2))
sketch22.addConstraint(Sketcher.Constraint("Vertical", 3, 2, 4, 2))
sketch22.addConstraint(Sketcher.Constraint("Equal", 7, 0))
sketch22.addConstraint(Sketcher.Constraint("Equal", 2, 4))
sketch22.addConstraint(Sketcher.Constraint("DistanceX", 1, 1, 1, 2, 5.0))
sketch22.addConstraint(Sketcher.Constraint("DistanceY", -1, 1, 0, 2, 93.0))
sketch22.setExpression("Constraints[21]", "Params.sketch22_width")
pocket16 = doc.addObject("PartDesign::Pocket", "Pocket015")
body.addObject(pocket16)
pocket16.Profile = sketch22
pocket16.setExpression("Length", "Params.pocket16_length")

# Sketch on XY plane
sketch23 = doc.addObject("Sketcher::SketchObject", "Sketch022")
body.addObject(sketch23)
sketch23.AttachmentSupport = (doc.XY_Plane, [""])
sketch23.MapMode = "FlatFace"
sketch23.AttachmentOffset = App.Placement(Vector(0, 0, 31.25), App.Rotation())
sketch23.addGeometry(Part.LineSegment(Vector(-5, 98, 0), Vector(-5, 93, 0)), False)
sketch23.addGeometry(Part.LineSegment(Vector(-5, 93, 0), Vector(-1.5, 93, 0)), False)
sketch23.addGeometry(Part.LineSegment(Vector(-1.5, 93, 0), Vector(-1.5, 98, 0)), False)
sketch23.addGeometry(Part.LineSegment(Vector(-1.5, 98, 0), Vector(-5, 98, 0)), False)
sketch23.addGeometry(Part.LineSegment(Vector(-5, 5, 0), Vector(-5, 0, 0)), False)
sketch23.addGeometry(Part.LineSegment(Vector(-5, 0, 0), Vector(-1.5, 0, 0)), False)
sketch23.addGeometry(Part.LineSegment(Vector(-1.5, 0, 0), Vector(-1.5, 5, 0)), False)
sketch23.addGeometry(Part.LineSegment(Vector(-1.5, 5, 0), Vector(-5, 5, 0)), False)
sketch23.addConstraint(Sketcher.Constraint("Coincident", 0, 2, 1, 1))
sketch23.addConstraint(Sketcher.Constraint("Coincident", 1, 2, 2, 1))
sketch23.addConstraint(Sketcher.Constraint("Coincident", 2, 2, 3, 1))
sketch23.addConstraint(Sketcher.Constraint("Coincident", 3, 2, 0, 1))
sketch23.addConstraint(Sketcher.Constraint("Coincident", 4, 2, 5, 1))
sketch23.addConstraint(Sketcher.Constraint("Coincident", 5, 2, 6, 1))
sketch23.addConstraint(Sketcher.Constraint("Coincident", 6, 2, 7, 1))
sketch23.addConstraint(Sketcher.Constraint("Coincident", 7, 2, 4, 1))
sketch23.addConstraint(Sketcher.Constraint("Vertical", 0))
sketch23.addConstraint(Sketcher.Constraint("Horizontal", 1))
sketch23.addConstraint(Sketcher.Constraint("Vertical", 2))
sketch23.addConstraint(Sketcher.Constraint("Horizontal", 3))
sketch23.addConstraint(Sketcher.Constraint("Vertical", 4))
sketch23.addConstraint(Sketcher.Constraint("Horizontal", 5))
sketch23.addConstraint(Sketcher.Constraint("Vertical", 6))
sketch23.addConstraint(Sketcher.Constraint("Horizontal", 7))
sketch23.addConstraint(Sketcher.Constraint("PointOnObject", 4, 2, -1))
sketch23.addConstraint(Sketcher.Constraint("Vertical", 3, 2, 4, 2))
sketch23.addConstraint(Sketcher.Constraint("Vertical", 2, 2, 5, 2))
sketch23.addConstraint(Sketcher.Constraint("Equal", 2, 4))
sketch23.addConstraint(Sketcher.Constraint("DistanceY", 0, 2, 0, 1, 5.0))
sketch23.addConstraint(Sketcher.Constraint("DistanceX", 1, 1, 1, 2, 3.5))
sketch23.addConstraint(Sketcher.Constraint("DistanceX", 0, 2, -1, 1, 5.0))
sketch23.addConstraint(Sketcher.Constraint("DistanceY", -1, 1, 0, 2, 93.0))
sketch23.setExpression("Constraints[20]", "Params.sketch23_height")
sketch23.setExpression("Constraints[21]", "Params.sketch23_width")
pocket17 = doc.addObject("PartDesign::Pocket", "Pocket016")
body.addObject(pocket17)
pocket17.Profile = sketch23
pocket17.setExpression("Length", "Params.pocket17_length")

# Sketch on YZ plane
sketch24 = doc.addObject("Sketcher::SketchObject", "Sketch023")
body.addObject(sketch24)
sketch24.AttachmentSupport = (doc.YZ_Plane, [""])
sketch24.MapMode = "FlatFace"
sketch24.addGeometry(Part.LineSegment(Vector(61.625, 40.75, 0), Vector(36.375, 40.75, 0)), False)
sketch24.addGeometry(Part.LineSegment(Vector(36.375, 40.75, 0), Vector(36.375, 30.5, 0)), False)
sketch24.addGeometry(Part.LineSegment(Vector(36.375, 30.5, 0), Vector(61.625, 30.5, 0)), False)
sketch24.addGeometry(Part.LineSegment(Vector(61.625, 30.5, 0), Vector(61.625, 40.75, 0)), False)
sketch24.addConstraint(Sketcher.Constraint("Coincident", 0, 2, 1, 1))
sketch24.addConstraint(Sketcher.Constraint("Coincident", 1, 2, 2, 1))
sketch24.addConstraint(Sketcher.Constraint("Coincident", 2, 2, 3, 1))
sketch24.addConstraint(Sketcher.Constraint("Coincident", 3, 2, 0, 1))
sketch24.addConstraint(Sketcher.Constraint("Horizontal", 0))
sketch24.addConstraint(Sketcher.Constraint("Vertical", 1))
sketch24.addConstraint(Sketcher.Constraint("Horizontal", 2))
sketch24.addConstraint(Sketcher.Constraint("Vertical", 3))
sketch24.addConstraint(Sketcher.Constraint("DistanceX", 0, 2, 0, 1, 25.25))
sketch24.addConstraint(Sketcher.Constraint("DistanceY", 1, 2, 1, 1, 10.25))
sketch24.addConstraint(Sketcher.Constraint("DistanceY", -1, 1, 1, 2, 30.5))
sketch24.addConstraint(Sketcher.Constraint("DistanceX", -1, 1, 0, 2, 36.375))
sketch24.setExpression("Constraints[8]", "Params.sketch24_width")
sketch24.setExpression("Constraints[9]", "Params.sketch24_height")
pocket18 = doc.addObject("PartDesign::Pocket", "Pocket017")
body.addObject(pocket18)
pocket18.Profile = sketch24
pocket18.setExpression("Length", "Params.pocket18_length")

# Sketch on XY plane
sketch25 = doc.addObject("Sketcher::SketchObject", "Sketch024")
body.addObject(sketch25)
sketch25.AttachmentSupport = (doc.XY_Plane, [""])
sketch25.MapMode = "FlatFace"
sketch25.AttachmentOffset = App.Placement(Vector(0, 0, 45), App.Rotation())
sketch25.addGeometry(Part.LineSegment(Vector(-4.325, 68.375, 0), Vector(-4.325, 30.125, 0)), False)
sketch25.addGeometry(Part.LineSegment(Vector(-4.325, 30.125, 0), Vector(-0.675, 30.125, 0)), False)
sketch25.addGeometry(Part.LineSegment(Vector(-0.675, 30.125, 0), Vector(-0.675, 68.375, 0)), False)
sketch25.addGeometry(Part.LineSegment(Vector(-0.675, 68.375, 0), Vector(-4.325, 68.375, 0)), False)
sketch25.addConstraint(Sketcher.Constraint("Coincident", 0, 2, 1, 1))
sketch25.addConstraint(Sketcher.Constraint("Coincident", 1, 2, 2, 1))
sketch25.addConstraint(Sketcher.Constraint("Coincident", 2, 2, 3, 1))
sketch25.addConstraint(Sketcher.Constraint("Coincident", 3, 2, 0, 1))
sketch25.addConstraint(Sketcher.Constraint("Vertical", 0))
sketch25.addConstraint(Sketcher.Constraint("Horizontal", 1))
sketch25.addConstraint(Sketcher.Constraint("Vertical", 2))
sketch25.addConstraint(Sketcher.Constraint("Horizontal", 3))
sketch25.addConstraint(Sketcher.Constraint("DistanceX", 1, 1, 1, 2, 3.65))
sketch25.addConstraint(Sketcher.Constraint("DistanceY", 0, 2, 0, 1, 38.25))
sketch25.addConstraint(Sketcher.Constraint("DistanceX", 0, 2, -1, 1, 4.325))
sketch25.addConstraint(Sketcher.Constraint("DistanceY", -1, 1, 0, 2, 30.125))
sketch25.setExpression("Constraints[8]", "Params.sketch25_width")
sketch25.setExpression("Constraints[9]", "Params.sketch25_height")
pocket19 = doc.addObject("PartDesign::Pocket", "Pocket018")
body.addObject(pocket19)
pocket19.Profile = sketch25
pocket19.setExpression("Length", "Params.pocket19_length")

# Sketch on XY plane
sketch26 = doc.addObject("Sketcher::SketchObject", "Sketch025")
body.addObject(sketch26)
sketch26.AttachmentSupport = (doc.XY_Plane, [""])
sketch26.MapMode = "FlatFace"
sketch26.AttachmentOffset = App.Placement(Vector(0, 0, 45), App.Rotation())
sketch26.addGeometry(Part.LineSegment(Vector(-5.005, 36.125, 0), Vector(-5.005, 30.125, 0)), False)
sketch26.addGeometry(Part.LineSegment(Vector(-5.005, 30.125, 0), Vector(-4.325, 30.125, 0)), False)
sketch26.addGeometry(Part.LineSegment(Vector(-4.325, 30.125, 0), Vector(-4.325, 36.125, 0)), False)
sketch26.addGeometry(Part.LineSegment(Vector(-4.325, 36.125, 0), Vector(-5.005, 36.125, 0)), False)
sketch26.addConstraint(Sketcher.Constraint("Coincident", 0, 2, 1, 1))
sketch26.addConstraint(Sketcher.Constraint("Coincident", 1, 2, 2, 1))
sketch26.addConstraint(Sketcher.Constraint("Coincident", 2, 2, 3, 1))
sketch26.addConstraint(Sketcher.Constraint("Coincident", 3, 2, 0, 1))
sketch26.addConstraint(Sketcher.Constraint("Vertical", 0))
sketch26.addConstraint(Sketcher.Constraint("Horizontal", 1))
sketch26.addConstraint(Sketcher.Constraint("Vertical", 2))
sketch26.addConstraint(Sketcher.Constraint("Horizontal", 3))
sketch26.addConstraint(Sketcher.Constraint("DistanceY", 0, 2, 0, 1, 6.0))
sketch26.addConstraint(Sketcher.Constraint("DistanceX", 1, 1, 1, 2, 0.68))
sketch26.addConstraint(Sketcher.Constraint("DistanceX", 0, 2, -1, 1, 5.005))
sketch26.addConstraint(Sketcher.Constraint("DistanceY", -1, 1, 0, 2, 30.125))
sketch26.setExpression("Constraints[8]", "Params.sketch26_height")
sketch26.setExpression("Constraints[9]", "Params.sketch26_width")
pocket20 = doc.addObject("PartDesign::Pocket", "Pocket019")
body.addObject(pocket20)
pocket20.Profile = sketch26
pocket20.setExpression("Length", "Params.pocket20_length")

doc.recompute()
